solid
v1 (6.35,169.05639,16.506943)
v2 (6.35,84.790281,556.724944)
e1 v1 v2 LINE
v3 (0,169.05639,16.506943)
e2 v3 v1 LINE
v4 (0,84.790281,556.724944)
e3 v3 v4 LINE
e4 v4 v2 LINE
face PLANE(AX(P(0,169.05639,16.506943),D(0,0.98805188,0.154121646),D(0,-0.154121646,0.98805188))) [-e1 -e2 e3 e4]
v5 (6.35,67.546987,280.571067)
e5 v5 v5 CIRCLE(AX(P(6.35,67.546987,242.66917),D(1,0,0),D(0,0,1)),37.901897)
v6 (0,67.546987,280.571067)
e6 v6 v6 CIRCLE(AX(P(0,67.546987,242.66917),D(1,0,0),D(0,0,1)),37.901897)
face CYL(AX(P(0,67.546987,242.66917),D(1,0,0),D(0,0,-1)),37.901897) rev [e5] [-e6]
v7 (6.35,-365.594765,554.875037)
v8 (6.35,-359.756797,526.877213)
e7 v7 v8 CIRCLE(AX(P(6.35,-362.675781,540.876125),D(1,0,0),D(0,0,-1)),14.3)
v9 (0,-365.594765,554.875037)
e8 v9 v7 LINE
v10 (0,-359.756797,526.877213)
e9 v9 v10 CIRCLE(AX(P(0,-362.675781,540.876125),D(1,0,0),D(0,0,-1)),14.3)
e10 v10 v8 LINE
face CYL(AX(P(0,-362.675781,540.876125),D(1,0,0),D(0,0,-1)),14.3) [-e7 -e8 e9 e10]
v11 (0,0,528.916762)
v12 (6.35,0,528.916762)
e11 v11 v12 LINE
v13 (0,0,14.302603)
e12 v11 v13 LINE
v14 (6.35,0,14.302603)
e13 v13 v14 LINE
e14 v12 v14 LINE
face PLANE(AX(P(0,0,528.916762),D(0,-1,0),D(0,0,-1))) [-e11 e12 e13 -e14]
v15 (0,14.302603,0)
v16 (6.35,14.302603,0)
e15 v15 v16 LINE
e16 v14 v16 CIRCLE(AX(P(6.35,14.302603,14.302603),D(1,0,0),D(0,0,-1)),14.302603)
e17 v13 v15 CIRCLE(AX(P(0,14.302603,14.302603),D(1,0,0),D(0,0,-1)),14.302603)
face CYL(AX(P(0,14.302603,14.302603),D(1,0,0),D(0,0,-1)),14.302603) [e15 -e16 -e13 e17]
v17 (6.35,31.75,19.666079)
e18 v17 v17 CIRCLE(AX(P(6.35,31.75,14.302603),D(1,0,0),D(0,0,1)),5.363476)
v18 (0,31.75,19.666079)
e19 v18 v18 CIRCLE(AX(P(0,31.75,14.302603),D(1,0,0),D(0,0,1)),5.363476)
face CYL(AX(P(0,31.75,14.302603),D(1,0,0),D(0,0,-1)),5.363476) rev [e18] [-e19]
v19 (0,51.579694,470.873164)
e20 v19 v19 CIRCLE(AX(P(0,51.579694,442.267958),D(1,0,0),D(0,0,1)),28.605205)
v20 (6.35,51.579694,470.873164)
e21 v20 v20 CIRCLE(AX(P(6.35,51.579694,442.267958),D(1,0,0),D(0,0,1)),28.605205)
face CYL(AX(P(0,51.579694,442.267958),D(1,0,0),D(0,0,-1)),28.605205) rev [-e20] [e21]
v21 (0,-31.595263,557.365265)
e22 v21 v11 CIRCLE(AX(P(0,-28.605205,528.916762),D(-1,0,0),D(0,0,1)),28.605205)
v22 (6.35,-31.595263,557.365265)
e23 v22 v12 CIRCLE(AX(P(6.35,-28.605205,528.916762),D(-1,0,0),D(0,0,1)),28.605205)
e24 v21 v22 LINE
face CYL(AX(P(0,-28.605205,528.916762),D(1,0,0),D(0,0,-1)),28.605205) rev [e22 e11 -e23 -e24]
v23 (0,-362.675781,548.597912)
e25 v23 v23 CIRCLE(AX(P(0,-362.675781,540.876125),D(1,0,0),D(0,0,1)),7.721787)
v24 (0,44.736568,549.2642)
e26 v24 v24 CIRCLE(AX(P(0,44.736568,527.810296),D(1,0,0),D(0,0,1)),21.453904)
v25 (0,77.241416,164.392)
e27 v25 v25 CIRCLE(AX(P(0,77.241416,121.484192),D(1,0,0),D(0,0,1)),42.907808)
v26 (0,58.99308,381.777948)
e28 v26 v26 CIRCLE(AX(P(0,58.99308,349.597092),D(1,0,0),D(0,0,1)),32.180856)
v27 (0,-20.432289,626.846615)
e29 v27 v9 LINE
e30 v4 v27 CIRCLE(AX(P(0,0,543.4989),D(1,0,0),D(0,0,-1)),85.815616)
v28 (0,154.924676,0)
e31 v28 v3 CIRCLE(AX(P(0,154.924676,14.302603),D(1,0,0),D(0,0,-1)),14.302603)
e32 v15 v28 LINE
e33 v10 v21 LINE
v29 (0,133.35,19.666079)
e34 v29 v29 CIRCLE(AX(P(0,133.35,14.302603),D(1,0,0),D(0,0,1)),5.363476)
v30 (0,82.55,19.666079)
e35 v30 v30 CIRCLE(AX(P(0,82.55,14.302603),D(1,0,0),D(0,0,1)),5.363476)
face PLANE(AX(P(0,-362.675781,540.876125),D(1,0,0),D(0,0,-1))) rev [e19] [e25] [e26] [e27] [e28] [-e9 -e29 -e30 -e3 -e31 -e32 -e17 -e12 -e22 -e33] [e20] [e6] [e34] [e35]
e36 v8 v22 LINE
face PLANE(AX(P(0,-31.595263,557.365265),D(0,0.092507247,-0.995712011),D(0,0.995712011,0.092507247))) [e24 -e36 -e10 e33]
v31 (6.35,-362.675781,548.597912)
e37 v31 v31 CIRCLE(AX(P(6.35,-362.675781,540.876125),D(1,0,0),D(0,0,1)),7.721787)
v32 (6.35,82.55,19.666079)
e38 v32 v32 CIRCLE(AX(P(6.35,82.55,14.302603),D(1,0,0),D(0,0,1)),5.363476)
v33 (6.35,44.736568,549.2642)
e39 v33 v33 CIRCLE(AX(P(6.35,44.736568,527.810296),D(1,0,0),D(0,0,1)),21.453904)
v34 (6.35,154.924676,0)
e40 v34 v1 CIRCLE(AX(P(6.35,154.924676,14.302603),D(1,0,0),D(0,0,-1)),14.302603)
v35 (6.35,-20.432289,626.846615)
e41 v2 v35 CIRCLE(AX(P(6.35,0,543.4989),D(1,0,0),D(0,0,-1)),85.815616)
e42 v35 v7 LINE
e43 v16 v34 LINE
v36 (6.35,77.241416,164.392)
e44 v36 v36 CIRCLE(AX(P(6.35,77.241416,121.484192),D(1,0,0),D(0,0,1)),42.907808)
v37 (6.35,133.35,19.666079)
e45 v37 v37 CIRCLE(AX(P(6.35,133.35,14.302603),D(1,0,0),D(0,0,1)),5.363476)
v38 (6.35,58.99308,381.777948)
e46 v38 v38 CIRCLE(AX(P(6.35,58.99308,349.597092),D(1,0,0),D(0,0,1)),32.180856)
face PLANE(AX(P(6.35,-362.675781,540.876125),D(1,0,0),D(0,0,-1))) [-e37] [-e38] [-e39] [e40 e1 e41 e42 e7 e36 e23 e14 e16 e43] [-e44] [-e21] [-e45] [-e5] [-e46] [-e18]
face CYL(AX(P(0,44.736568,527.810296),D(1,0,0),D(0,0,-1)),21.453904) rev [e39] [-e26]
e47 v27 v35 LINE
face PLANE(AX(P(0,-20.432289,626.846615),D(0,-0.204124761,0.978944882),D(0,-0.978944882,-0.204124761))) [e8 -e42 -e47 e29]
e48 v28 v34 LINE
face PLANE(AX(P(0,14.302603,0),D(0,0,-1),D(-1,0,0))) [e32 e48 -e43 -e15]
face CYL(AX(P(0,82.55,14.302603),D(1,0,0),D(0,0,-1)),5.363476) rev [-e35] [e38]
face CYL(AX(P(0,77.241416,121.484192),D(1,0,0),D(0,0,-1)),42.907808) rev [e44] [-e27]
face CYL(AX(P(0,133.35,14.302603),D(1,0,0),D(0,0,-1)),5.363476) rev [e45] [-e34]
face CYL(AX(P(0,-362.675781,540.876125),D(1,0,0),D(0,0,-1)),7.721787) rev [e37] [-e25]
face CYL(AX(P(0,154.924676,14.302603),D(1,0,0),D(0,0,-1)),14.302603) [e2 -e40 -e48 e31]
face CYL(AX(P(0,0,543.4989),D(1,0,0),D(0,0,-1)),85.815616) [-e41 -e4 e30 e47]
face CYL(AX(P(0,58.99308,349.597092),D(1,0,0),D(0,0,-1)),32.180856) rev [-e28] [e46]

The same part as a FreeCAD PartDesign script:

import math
import FreeCAD as App
import Part
import Sketcher

doc = App.newDocument("Part")
body = doc.addObject("PartDesign::Body", "Body")

sketch1 = body.newObject("Sketcher::SketchObject", "Sketch")
sketch1.AttachmentSupport = (doc.getObject("YZ_Plane"), [""])
sketch1.MapMode = "FlatFace"
sketch1.AttachmentOffset = App.Placement(App.Vector(0, 0, 6.35), App.Rotation())
sketch1.addGeometry([
    Part.LineSegment(App.Vector(14, 0, 0), App.Vector(155, 0, 0)),
    Part.ArcOfCircle(Part.Circle(App.Vector(155, 14, 0), App.Vector(0, 0, 1), 14), math.radians(-90), math.radians(9)),
    Part.LineSegment(App.Vector(169, 17, 0), App.Vector(85, 557, 0)),
    Part.ArcOfCircle(Part.Circle(App.Vector(0, 543, 0), App.Vector(0, 0, 1), 86), math.radians(9), math.radians(104)),
    Part.LineSegment(App.Vector(-20, 627, 0), App.Vector(-366, 555, 0)),
    Part.ArcOfCircle(Part.Circle(App.Vector(-363, 541, 0), App.Vector(0, 0, 1), 14), math.radians(102), math.radians(282)),
    Part.LineSegment(App.Vector(-360, 527, 0), App.Vector(-32, 557, 0)),
    Part.ArcOfCircle(Part.Circle(App.Vector(-29, 529, 0), App.Vector(0, 0, 1), 29), math.radians(0), math.radians(96)),
    Part.LineSegment(App.Vector(0, 529, 0), App.Vector(0, 14, 0)),
    Part.ArcOfCircle(Part.Circle(App.Vector(14, 14, 0), App.Vector(0, 0, 1), 14), math.radians(180), math.radians(270)),
    Part.Circle(App.Vector(-363, 541, 0), App.Vector(0, 0, 1), 8),
    Part.Circle(App.Vector(45, 528, 0), App.Vector(0, 0, 1), 21),
    Part.Circle(App.Vector(52, 442, 0), App.Vector(0, 0, 1), 29),
    Part.Circle(App.Vector(59, 350, 0), App.Vector(0, 0, 1), 32),
    Part.Circle(App.Vector(68, 243, 0), App.Vector(0, 0, 1), 38),
    Part.Circle(App.Vector(32, 14, 0), App.Vector(0, 0, 1), 5),
    Part.Circle(App.Vector(77, 121, 0), App.Vector(0, 0, 1), 43),
    Part.Circle(App.Vector(83, 14, 0), App.Vector(0, 0, 1), 5),
    Part.Circle(App.Vector(133, 14, 0), App.Vector(0, 0, 1), 5),
], False)
sketch1.addConstraint([
    Sketcher.Constraint("Tangent", 0, 2, 1, 1),
    Sketcher.Constraint("Tangent", 1, 2, 2, 1),
    Sketcher.Constraint("Tangent", 2, 2, 3, 1),
    Sketcher.Constraint("Coincident", 3, 2, 4, 1),
    Sketcher.Constraint("Tangent", 4, 2, 5, 1),
    Sketcher.Constraint("Coincident", 5, 2, 6, 1),
    Sketcher.Constraint("Coincident", 6, 2, 7, 2),
    Sketcher.Constraint("Tangent", 7, 1, 8, 1),
    Sketcher.Constraint("Tangent", 8, 2, 9, 1),
    Sketcher.Constraint("Tangent", 9, 2, 0, 1),
    Sketcher.Constraint("Horizontal", 0),
    Sketcher.Constraint("Vertical", 8),
    Sketcher.Constraint("Coincident", 10, 3, 5, 3),
    Sketcher.Constraint("Equal", 1, 9),
    Sketcher.Constraint("Equal", 7, 12),
    Sketcher.Constraint("Equal", 15, 17),
    Sketcher.Constraint("Equal", 17, 18),
    Sketcher.Constraint("PointOnObject", 3, 3, -2),
    Sketcher.Constraint("PointOnObject", 0, 2, -1),
    Sketcher.Constraint("PointOnObject", 7, 1, -2),
    Sketcher.Constraint("Horizontal", 9, 3, 15, 3),
    Sketcher.Constraint("Horizontal", 15, 3, 17, 3),
    Sketcher.Constraint("Horizontal", 17, 3, 18, 3),
    Sketcher.Constraint("Radius", 5, 14.3),
    Sketcher.Constraint("DistanceX", 15, 3, 17, 3, 50.8),
    Sketcher.Constraint("DistanceX", 17, 3, 18, 3, 50.8),
    Sketcher.Constraint("Diameter", 12, 57.210411),
    Sketcher.Constraint("Diameter", 13, 64.361712),
    Sketcher.Constraint("Diameter", 15, 10.726952),
    Sketcher.Constraint("DistanceX", -1, 1, 15, 3, 31.75),
    Sketcher.Constraint("Diameter", 10, 15.443575),
    Sketcher.Constraint("Diameter", 11, 42.907808),
    Sketcher.Constraint("Diameter", 14, 75.803794),
    Sketcher.Constraint("Diameter", 16, 85.815616),
    Sketcher.Constraint("Radius", 1, 14.302603),
    Sketcher.Constraint("Radius", 3, 85.815616),
    Sketcher.Constraint("DistanceY", 8, 2, 8, 1, 514.61416),
    Sketcher.Constraint("DistanceY", -1, 1, 3, 3, 543.4989),
    Sketcher.Constraint("DistanceX", 7, 3, 12, 3, 80.184899),
    Sketcher.Constraint("DistanceY", 16, 3, 13, 3, 228.112901),
    Sketcher.Constraint("DistanceX", 13, 3, 2, 2, 25.797201),
    Sketcher.Constraint("DistanceY", 5, 2, 3, 2, 99.969402),
    Sketcher.Constraint("Distance", 4, 352.58622),
    Sketcher.Constraint("DistanceX", 0, 1, 0, 2, 140.622074),
    Sketcher.Constraint("DistanceX", 5, 3, -1, 1, 362.675781),
    Sketcher.Constraint("DistanceY", -1, 1, 12, 3, 442.267958),
    Sketcher.Constraint("DistanceY", -1, 1, 14, 3, 242.66917),
    Sketcher.Constraint("DistanceY", -1, 1, 16, 3, 121.484192),
    Sketcher.Constraint("DistanceX", 10, 3, 11, 3, 407.412349),
    Sketcher.Constraint("DistanceY", 11, 3, 10, 3, 13.065829),
    Sketcher.Constraint("DistanceX", 14, 3, 1, 3, 87.377689),
    Sketcher.Constraint("DistanceX", 14, 3, 16, 3, 9.694428),
    Sketcher.Constraint("DistanceY", 11, 3, 2, 2, 28.914648),
    Sketcher.Constraint("DistanceX", 6, 2, 7, 3, 2.990058),
])
pad1 = body.newObject("PartDesign::Pad", "Pad")
pad1.Profile = sketch1
pad1.Length = 6.35
pad1.Reversed = True

doc.recompute()
